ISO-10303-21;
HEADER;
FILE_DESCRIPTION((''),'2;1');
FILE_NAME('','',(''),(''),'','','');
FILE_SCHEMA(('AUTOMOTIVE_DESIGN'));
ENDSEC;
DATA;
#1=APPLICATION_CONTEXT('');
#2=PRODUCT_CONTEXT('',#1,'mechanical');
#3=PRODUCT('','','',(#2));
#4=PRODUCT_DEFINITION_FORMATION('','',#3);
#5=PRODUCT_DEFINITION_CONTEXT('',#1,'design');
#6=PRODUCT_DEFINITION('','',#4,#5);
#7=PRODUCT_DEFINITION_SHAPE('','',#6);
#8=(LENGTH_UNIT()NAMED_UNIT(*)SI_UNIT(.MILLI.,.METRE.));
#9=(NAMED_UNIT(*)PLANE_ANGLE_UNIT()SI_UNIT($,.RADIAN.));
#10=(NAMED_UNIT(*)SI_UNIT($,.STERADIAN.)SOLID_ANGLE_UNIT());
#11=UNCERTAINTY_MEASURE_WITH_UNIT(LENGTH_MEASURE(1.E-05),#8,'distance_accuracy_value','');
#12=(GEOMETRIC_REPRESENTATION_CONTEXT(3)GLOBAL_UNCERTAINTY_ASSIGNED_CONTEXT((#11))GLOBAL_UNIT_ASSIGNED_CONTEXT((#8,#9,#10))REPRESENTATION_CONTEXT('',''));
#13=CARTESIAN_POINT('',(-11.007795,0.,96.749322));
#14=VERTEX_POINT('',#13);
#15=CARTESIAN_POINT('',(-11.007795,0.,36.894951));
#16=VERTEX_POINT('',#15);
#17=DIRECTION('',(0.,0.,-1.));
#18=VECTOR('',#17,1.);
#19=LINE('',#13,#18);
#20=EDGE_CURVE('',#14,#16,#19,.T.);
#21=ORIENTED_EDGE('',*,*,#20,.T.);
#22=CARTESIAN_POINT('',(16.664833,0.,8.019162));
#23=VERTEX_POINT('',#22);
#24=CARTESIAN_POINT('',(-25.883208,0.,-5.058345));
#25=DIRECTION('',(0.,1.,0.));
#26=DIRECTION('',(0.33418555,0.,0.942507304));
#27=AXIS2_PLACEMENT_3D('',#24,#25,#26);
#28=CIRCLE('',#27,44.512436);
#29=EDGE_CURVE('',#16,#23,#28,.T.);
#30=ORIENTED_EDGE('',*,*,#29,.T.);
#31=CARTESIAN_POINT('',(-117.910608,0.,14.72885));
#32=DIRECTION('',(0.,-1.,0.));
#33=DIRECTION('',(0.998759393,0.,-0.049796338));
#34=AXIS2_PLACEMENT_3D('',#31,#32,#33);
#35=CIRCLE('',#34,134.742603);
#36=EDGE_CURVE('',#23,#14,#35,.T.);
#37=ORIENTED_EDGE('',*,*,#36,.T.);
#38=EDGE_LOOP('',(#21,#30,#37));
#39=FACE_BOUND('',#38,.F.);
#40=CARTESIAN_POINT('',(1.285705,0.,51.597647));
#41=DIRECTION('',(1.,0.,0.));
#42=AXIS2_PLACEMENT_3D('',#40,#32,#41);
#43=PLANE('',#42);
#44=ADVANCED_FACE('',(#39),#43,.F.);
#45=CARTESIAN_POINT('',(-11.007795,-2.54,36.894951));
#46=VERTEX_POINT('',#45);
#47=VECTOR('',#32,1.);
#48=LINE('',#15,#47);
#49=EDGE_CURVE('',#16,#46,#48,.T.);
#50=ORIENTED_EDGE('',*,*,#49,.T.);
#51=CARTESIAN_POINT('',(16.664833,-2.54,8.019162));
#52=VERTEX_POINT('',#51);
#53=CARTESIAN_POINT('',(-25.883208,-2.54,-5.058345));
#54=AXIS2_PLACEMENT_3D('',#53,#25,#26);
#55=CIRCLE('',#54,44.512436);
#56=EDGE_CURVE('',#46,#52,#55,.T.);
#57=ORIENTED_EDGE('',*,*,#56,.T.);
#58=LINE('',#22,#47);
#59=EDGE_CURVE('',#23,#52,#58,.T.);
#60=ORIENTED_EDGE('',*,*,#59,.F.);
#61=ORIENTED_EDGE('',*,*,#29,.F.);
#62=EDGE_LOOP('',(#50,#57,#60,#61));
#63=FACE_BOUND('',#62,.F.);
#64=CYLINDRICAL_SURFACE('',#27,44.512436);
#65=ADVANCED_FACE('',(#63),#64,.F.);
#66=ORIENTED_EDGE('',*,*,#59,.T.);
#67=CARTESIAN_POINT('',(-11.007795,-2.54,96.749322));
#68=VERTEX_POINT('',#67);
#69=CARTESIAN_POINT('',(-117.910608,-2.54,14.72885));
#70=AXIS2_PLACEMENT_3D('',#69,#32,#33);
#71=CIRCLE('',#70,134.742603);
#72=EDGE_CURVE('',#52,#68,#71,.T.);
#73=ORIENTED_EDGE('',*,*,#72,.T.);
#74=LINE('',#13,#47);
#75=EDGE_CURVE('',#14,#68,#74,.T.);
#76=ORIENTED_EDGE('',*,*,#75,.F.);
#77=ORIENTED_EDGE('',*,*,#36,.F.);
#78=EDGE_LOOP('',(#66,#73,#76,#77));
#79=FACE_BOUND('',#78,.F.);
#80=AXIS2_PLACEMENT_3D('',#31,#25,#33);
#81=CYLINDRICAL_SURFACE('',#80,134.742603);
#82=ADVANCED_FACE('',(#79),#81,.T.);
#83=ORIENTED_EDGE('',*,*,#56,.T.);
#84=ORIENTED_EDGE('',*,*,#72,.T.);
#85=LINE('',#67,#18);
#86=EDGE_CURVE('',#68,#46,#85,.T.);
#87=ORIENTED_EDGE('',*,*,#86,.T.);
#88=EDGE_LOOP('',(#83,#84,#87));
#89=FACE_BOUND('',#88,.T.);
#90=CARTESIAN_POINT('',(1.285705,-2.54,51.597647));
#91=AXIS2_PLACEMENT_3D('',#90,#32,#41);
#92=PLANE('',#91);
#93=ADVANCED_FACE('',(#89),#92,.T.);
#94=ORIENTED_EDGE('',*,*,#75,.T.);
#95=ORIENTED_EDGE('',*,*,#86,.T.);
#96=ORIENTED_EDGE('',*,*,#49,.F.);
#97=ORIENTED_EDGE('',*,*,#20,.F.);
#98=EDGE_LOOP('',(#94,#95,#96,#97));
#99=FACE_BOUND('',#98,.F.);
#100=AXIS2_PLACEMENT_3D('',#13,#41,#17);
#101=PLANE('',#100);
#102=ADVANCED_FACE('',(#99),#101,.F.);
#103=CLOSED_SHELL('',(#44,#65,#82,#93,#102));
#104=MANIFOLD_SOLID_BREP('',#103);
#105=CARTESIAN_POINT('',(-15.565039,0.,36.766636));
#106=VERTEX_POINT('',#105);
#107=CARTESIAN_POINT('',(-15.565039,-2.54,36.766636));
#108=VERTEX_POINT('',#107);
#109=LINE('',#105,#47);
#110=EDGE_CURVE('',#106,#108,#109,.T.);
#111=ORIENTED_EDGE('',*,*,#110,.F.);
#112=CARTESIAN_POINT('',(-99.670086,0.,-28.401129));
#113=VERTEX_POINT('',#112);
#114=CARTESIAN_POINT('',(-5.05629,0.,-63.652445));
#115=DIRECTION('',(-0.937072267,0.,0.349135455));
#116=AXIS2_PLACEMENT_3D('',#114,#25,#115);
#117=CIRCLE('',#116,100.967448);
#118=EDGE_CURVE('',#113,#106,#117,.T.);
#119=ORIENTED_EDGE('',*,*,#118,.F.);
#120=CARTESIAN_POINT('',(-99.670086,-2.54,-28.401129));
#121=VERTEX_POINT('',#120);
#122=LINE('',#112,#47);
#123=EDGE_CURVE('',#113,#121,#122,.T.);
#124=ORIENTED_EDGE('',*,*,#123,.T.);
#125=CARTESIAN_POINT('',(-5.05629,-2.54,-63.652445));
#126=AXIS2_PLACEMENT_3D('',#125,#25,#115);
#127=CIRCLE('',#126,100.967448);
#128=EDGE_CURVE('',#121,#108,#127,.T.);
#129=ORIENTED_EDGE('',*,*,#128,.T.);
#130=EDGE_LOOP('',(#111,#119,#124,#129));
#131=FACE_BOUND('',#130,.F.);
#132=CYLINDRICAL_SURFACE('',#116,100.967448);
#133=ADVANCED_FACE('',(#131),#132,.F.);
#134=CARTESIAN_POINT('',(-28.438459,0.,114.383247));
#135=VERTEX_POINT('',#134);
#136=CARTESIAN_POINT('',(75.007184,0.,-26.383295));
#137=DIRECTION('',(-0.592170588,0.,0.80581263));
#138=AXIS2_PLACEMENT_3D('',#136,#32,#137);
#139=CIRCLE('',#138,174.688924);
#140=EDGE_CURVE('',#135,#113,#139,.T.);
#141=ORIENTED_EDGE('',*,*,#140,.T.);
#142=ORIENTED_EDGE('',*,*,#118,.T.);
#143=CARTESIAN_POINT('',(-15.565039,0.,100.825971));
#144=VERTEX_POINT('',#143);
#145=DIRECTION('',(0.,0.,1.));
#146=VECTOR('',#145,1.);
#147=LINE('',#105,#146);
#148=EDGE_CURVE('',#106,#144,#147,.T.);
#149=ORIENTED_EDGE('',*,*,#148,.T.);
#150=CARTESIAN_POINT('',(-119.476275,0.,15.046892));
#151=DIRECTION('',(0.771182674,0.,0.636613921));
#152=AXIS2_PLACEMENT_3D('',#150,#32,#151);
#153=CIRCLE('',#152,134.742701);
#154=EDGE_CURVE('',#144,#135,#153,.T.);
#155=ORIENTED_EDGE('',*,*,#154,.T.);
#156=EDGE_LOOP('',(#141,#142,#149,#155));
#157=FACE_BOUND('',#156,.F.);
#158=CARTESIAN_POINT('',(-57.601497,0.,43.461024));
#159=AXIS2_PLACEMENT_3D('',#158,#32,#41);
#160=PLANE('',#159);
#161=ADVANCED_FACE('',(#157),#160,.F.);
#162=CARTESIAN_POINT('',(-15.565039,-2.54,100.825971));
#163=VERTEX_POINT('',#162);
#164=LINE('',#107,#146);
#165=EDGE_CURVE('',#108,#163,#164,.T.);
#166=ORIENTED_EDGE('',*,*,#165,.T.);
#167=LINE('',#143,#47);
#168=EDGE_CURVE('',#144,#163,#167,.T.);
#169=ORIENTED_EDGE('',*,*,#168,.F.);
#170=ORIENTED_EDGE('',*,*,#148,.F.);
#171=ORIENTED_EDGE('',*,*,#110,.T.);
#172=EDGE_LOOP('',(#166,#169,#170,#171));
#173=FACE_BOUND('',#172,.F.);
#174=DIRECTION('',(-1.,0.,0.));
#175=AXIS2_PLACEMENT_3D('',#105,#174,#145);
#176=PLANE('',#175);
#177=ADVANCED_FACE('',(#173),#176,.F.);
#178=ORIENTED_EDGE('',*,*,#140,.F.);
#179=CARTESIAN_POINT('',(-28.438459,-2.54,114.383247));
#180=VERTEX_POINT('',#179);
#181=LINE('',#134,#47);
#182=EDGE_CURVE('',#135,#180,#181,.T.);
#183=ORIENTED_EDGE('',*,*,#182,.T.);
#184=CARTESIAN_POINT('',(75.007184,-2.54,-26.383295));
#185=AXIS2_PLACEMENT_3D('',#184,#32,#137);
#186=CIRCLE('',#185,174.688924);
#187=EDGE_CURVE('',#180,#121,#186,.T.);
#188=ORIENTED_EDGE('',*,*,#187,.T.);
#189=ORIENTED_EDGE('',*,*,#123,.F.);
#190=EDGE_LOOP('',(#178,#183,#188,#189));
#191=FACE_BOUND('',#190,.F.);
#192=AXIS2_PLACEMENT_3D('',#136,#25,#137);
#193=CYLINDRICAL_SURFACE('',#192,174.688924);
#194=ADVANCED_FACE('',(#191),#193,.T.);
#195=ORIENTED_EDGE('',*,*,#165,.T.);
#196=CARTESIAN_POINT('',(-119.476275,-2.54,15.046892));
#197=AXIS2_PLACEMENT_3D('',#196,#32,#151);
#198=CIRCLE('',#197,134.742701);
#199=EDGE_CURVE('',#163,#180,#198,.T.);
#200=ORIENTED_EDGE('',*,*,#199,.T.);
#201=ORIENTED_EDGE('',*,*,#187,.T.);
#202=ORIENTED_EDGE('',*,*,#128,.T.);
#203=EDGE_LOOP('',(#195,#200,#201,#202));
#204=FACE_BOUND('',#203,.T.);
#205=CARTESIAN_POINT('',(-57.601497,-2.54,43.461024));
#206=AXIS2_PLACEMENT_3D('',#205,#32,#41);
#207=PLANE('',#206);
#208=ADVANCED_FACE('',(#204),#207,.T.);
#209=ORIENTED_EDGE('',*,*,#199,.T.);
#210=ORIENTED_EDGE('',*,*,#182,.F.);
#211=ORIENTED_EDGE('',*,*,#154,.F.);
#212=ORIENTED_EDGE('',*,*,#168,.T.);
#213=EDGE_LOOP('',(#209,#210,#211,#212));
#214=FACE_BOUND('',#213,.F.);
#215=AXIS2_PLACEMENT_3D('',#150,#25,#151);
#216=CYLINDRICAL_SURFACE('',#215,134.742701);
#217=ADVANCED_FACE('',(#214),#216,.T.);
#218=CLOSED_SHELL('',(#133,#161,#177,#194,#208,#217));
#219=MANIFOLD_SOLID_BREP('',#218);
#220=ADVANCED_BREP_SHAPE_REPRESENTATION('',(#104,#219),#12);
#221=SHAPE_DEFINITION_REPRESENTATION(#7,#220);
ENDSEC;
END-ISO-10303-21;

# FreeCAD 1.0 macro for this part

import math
import FreeCAD as App
import Part
import Sketcher

V = App.Vector
Q = App.Units.Quantity

doc = App.newDocument("Part")
body = doc.addObject("PartDesign::Body", "Body")
body.AllowCompound = True

# Sketch on XZ plane
sketch1 = body.newObject("Sketcher::SketchObject", "Sketch")
sketch1.AttachmentSupport = (doc.getObject("XZ_Plane"), [""])
sketch1.MapMode = "FlatFace"
sketch1.addGeometry(Part.ArcOfCircle(Part.Circle(V(-119, 15, 0), V(0, 0, 1), 135), math.radians(39.54), math.radians(47.5)), False)
sketch1.addGeometry(Part.ArcOfCircle(Part.Circle(V(75, -26, 0), V(0, 0, 1), 175), math.radians(126), math.radians(181)), False)
sketch1.addGeometry(Part.ArcOfCircle(Part.Circle(V(-5, -64, 0), V(0, 0, 1), 101), math.radians(96), math.radians(160)), False)
sketch1.addGeometry(Part.LineSegment(V(-16, 37, 0), V(-16, 101, 0)), False)
sketch1.addGeometry(Part.ArcOfCircle(Part.Circle(V(-26, -5, 0), V(0, 0, 1), 45), math.radians(17), math.radians(70)), False)
sketch1.addGeometry(Part.ArcOfCircle(Part.Circle(V(-118, 15, 0), V(0, 0, 1), 135), math.radians(-3), math.radians(37)), False)
sketch1.addGeometry(Part.LineSegment(V(-11, 97, 0), V(-11, 37, 0)), False)
sketch1.addConstraint(Sketcher.Constraint("Coincident", 0, 2, 1, 1))
sketch1.addConstraint(Sketcher.Constraint("Coincident", 1, 2, 2, 2))
sketch1.addConstraint(Sketcher.Constraint("Coincident", 2, 1, 3, 1))
sketch1.addConstraint(Sketcher.Constraint("Coincident", 3, 2, 0, 1))
sketch1.addConstraint(Sketcher.Constraint("Coincident", 4, 1, 5, 1))
sketch1.addConstraint(Sketcher.Constraint("Coincident", 5, 2, 6, 1))
sketch1.addConstraint(Sketcher.Constraint("Coincident", 6, 2, 4, 2))
sketch1.addConstraint(Sketcher.Constraint("Vertical", 3))
sketch1.addConstraint(Sketcher.Constraint("Vertical", 6))
sketch1.addConstraint(Sketcher.Constraint("Radius", 0, 134.742701))
sketch1.addConstraint(Sketcher.Constraint("Radius", 2, 100.967448))
sketch1.addConstraint(Sketcher.Constraint("Radius", 1, 174.688924))
sketch1.addConstraint(Sketcher.Constraint("Radius", 4, 44.512436))
sketch1.addConstraint(Sketcher.Constraint("Radius", 5, 134.742603))
sketch1.addConstraint(Sketcher.Constraint("DistanceY", 6, 2, 6, 1, 59.854371))
sketch1.addConstraint(Sketcher.Constraint("DistanceY", 2, 3, 4, 3, 58.5941))
sketch1.addConstraint(Sketcher.Constraint("DistanceX", 5, 3, 4, 3, 92.0274))
sketch1.addConstraint(Sketcher.Constraint("DistanceY", 3, 1, 3, 2, 64.059335))
sketch1.addConstraint(Sketcher.Constraint("DistanceY", -1, 1, 0, 3, 15.046892))
sketch1.addConstraint(Sketcher.Constraint("DistanceX", 2, 3, -1, 1, 5.05629))
sketch1.addConstraint(Sketcher.Constraint("DistanceX", 4, 3, -1, 1, 25.883208))
sketch1.addConstraint(Sketcher.Constraint("DistanceY", -1, 1, 5, 3, 14.72885))
sketch1.addConstraint(Sketcher.Constraint("DistanceX", 0, 2, -1, 1, 28.438459))
sketch1.addConstraint(Sketcher.Constraint("DistanceY", 1, 2, -1, 1, 28.401129))
sketch1.addConstraint(Sketcher.Constraint("DistanceX", 2, 1, -1, 1, 15.565039))
sketch1.addConstraint(Sketcher.Constraint("DistanceY", -1, 1, 3, 2, 100.825971))
pad1 = body.newObject("PartDesign::Pad", "Pad")
pad1.Profile = sketch1
pad1.Length = Q("0.1 in")

doc.recompute()
